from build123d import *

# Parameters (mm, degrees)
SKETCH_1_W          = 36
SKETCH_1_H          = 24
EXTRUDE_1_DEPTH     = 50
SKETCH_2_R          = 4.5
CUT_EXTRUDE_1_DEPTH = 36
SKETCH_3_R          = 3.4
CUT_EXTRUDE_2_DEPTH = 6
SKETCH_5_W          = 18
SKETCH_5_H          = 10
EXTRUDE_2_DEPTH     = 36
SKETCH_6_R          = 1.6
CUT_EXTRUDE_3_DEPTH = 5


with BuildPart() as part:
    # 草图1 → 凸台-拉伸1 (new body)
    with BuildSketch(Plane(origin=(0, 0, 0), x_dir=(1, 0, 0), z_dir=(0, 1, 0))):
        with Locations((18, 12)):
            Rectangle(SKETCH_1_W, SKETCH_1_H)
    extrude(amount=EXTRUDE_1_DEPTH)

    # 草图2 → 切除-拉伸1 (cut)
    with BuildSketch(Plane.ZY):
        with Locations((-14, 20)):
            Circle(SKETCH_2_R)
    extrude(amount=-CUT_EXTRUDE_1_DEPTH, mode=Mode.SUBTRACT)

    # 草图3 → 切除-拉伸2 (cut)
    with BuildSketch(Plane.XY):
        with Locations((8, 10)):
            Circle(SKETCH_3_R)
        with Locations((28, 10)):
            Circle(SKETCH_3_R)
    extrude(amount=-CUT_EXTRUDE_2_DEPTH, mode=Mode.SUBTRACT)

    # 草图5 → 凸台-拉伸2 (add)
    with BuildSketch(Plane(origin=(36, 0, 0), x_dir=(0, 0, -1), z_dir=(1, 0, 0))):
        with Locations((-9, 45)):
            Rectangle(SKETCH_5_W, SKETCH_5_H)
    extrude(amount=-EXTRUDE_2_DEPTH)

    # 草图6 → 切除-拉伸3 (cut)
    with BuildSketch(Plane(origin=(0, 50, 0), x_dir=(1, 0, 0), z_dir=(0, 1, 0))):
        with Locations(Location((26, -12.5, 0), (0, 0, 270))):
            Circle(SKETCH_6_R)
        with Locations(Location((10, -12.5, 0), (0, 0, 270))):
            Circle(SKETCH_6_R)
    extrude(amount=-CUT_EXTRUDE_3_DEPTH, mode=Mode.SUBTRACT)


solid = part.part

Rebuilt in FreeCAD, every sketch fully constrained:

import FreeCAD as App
import Part
import Sketcher

doc = App.newDocument("Part")
body = doc.addObject("PartDesign::Body", "Body")

# Sketch on XZ plane
sketch1 = doc.addObject("Sketcher::SketchObject", "Sketch")
body.addObject(sketch1)
sketch1.AttachmentSupport = (doc.XZ_Plane, [""])
sketch1.MapMode = "FlatFace"
sketch1.addGeometry(Part.LineSegment(App.Vector(0, -24, 0), App.Vector(0, 0, 0)), False)
sketch1.addGeometry(Part.LineSegment(App.Vector(0, 0, 0), App.Vector(36, 0, 0)), False)
sketch1.addGeometry(Part.LineSegment(App.Vector(36, 0, 0), App.Vector(36, -24, 0)), False)
sketch1.addGeometry(Part.LineSegment(App.Vector(36, -24, 0), App.Vector(0, -24, 0)), False)
sketch1.addConstraint(Sketcher.Constraint("Coincident", 0, 2, 1, 1))
sketch1.addConstraint(Sketcher.Constraint("Coincident", 1, 2, 2, 1))
sketch1.addConstraint(Sketcher.Constraint("Coincident", 2, 2, 3, 1))
sketch1.addConstraint(Sketcher.Constraint("Coincident", 3, 2, 0, 1))
sketch1.addConstraint(Sketcher.Constraint("Vertical", 0))
sketch1.addConstraint(Sketcher.Constraint("Horizontal", 1))
sketch1.addConstraint(Sketcher.Constraint("Vertical", 2))
sketch1.addConstraint(Sketcher.Constraint("Horizontal", 3))
sketch1.addConstraint(Sketcher.Constraint("Coincident", 0, 2, -1, 1))
sketch1.addConstraint(Sketcher.Constraint("DistanceX", 1, 1, 1, 2, 36.0))
sketch1.addConstraint(Sketcher.Constraint("DistanceY", 0, 1, 0, 2, 24.0))
pad1 = doc.addObject("PartDesign::Pad", "Pad")
body.addObject(pad1)
pad1.Profile = sketch1
pad1.Length = 50
pad1.Reversed = True

# Sketch on YZ plane
sketch2 = doc.addObject("Sketcher::SketchObject", "Sketch001")
body.addObject(sketch2)
sketch2.AttachmentSupport = (doc.YZ_Plane, [""])
sketch2.MapMode = "FlatFace"
sketch2.addGeometry(Part.Circle(App.Vector(20, -14, 0), App.Vector(0, 0, 1), 4.5), False)
sketch2.addConstraint(Sketcher.Constraint("Diameter", 0, 9.0))
sketch2.addConstraint(Sketcher.Constraint("DistanceX", -1, 1, 0, 3, 20.0))
sketch2.addConstraint(Sketcher.Constraint("DistanceY", 0, 3, -1, 1, 14.0))
pocket1 = doc.addObject("PartDesign::Pocket", "Pocket")
body.addObject(pocket1)
pocket1.Profile = sketch2
pocket1.Length = 36
pocket1.Reversed = True

# Sketch on XY plane
sketch3 = doc.addObject("Sketcher::SketchObject", "Sketch002")
body.addObject(sketch3)
sketch3.AttachmentSupport = (doc.XY_Plane, [""])
sketch3.MapMode = "FlatFace"
sketch3.addGeometry(Part.Circle(App.Vector(8, 10, 0), App.Vector(0, 0, 1), 3.4), False)
sketch3.addGeometry(Part.Circle(App.Vector(28, 10, 0), App.Vector(0, 0, 1), 3.4), False)
sketch3.addConstraint(Sketcher.Constraint("Equal", 0, 1))
sketch3.addConstraint(Sketcher.Constraint("Horizontal", 0, 3, 1, 3))
sketch3.addConstraint(Sketcher.Constraint("Diameter", 0, 6.8))
sketch3.addConstraint(Sketcher.Constraint("DistanceX", -1, 1, 0, 3, 8.0))
sketch3.addConstraint(Sketcher.Constraint("DistanceY", -1, 1, 0, 3, 10.0))
sketch3.addConstraint(Sketcher.Constraint("DistanceX", -1, 1, 1, 3, 28.0))
pocket2 = doc.addObject("PartDesign::Pocket", "Pocket001")
body.addObject(pocket2)
pocket2.Profile = sketch3
pocket2.Length = 6

# Sketch on YZ plane
sketch4 = doc.addObject("Sketcher::SketchObject", "Sketch003")
body.addObject(sketch4)
sketch4.AttachmentSupport = (doc.YZ_Plane, [""])
sketch4.MapMode = "FlatFace"
sketch4.AttachmentOffset = App.Placement(App.Vector(0, 0, 36), App.Rotation())
sketch4.addGeometry(Part.LineSegment(App.Vector(50, 18, 0), App.Vector(40, 18, 0)), False)
sketch4.addGeometry(Part.LineSegment(App.Vector(40, 18, 0), App.Vector(40, 0, 0)), False)
sketch4.addGeometry(Part.LineSegment(App.Vector(40, 0, 0), App.Vector(50, 0, 0)), False)
sketch4.addGeometry(Part.LineSegment(App.Vector(50, 0, 0), App.Vector(50, 18, 0)), False)
sketch4.addConstraint(Sketcher.Constraint("Coincident", 0, 2, 1, 1))
sketch4.addConstraint(Sketcher.Constraint("Coincident", 1, 2, 2, 1))
sketch4.addConstraint(Sketcher.Constraint("Coincident", 2, 2, 3, 1))
sketch4.addConstraint(Sketcher.Constraint("Coincident", 3, 2, 0, 1))
sketch4.addConstraint(Sketcher.Constraint("Horizontal", 0))
sketch4.addConstraint(Sketcher.Constraint("Vertical", 1))
sketch4.addConstraint(Sketcher.Constraint("Horizontal", 2))
sketch4.addConstraint(Sketcher.Constraint("Vertical", 3))
sketch4.addConstraint(Sketcher.Constraint("PointOnObject", 1, 2, -1))
sketch4.addConstraint(Sketcher.Constraint("DistanceX", 0, 2, 0, 1, 10.0))
sketch4.addConstraint(Sketcher.Constraint("DistanceY", 1, 2, 1, 1, 18.0))
sketch4.addConstraint(Sketcher.Constraint("DistanceX", -1, 1, 0, 2, 40.0))
pad2 = doc.addObject("PartDesign::Pad", "Pad001")
body.addObject(pad2)
pad2.Profile = sketch4
pad2.Length = 36
pad2.Reversed = True

# Sketch on XZ plane
sketch5 = doc.addObject("Sketcher::SketchObject", "Sketch004")
body.addObject(sketch5)
sketch5.AttachmentSupport = (doc.XZ_Plane, [""])
sketch5.MapMode = "FlatFace"
sketch5.AttachmentOffset = App.Placement(App.Vector(0, 0, -50), App.Rotation())
sketch5.addGeometry(Part.Circle(App.Vector(26, 12.5, 0), App.Vector(0, 0, 1), 1.6), False)
sketch5.addGeometry(Part.Circle(App.Vector(10, 12.5, 0), App.Vector(0, 0, 1), 1.6), False)
sketch5.addConstraint(Sketcher.Constraint("Equal", 0, 1))
sketch5.addConstraint(Sketcher.Constraint("Horizontal", 0, 3, 1, 3))
sketch5.addConstraint(Sketcher.Constraint("Diameter", 0, 3.2))
sketch5.addConstraint(Sketcher.Constraint("DistanceX", -1, 1, 0, 3, 26.0))
sketch5.addConstraint(Sketcher.Constraint("DistanceX", -1, 1, 1, 3, 10.0))
sketch5.addConstraint(Sketcher.Constraint("DistanceY", -1, 1, 0, 3, 12.5))
pocket3 = doc.addObject("PartDesign::Pocket", "Pocket002")
body.addObject(pocket3)
pocket3.Profile = sketch5
pocket3.Length = 5
pocket3.Reversed = True

doc.recompute()
